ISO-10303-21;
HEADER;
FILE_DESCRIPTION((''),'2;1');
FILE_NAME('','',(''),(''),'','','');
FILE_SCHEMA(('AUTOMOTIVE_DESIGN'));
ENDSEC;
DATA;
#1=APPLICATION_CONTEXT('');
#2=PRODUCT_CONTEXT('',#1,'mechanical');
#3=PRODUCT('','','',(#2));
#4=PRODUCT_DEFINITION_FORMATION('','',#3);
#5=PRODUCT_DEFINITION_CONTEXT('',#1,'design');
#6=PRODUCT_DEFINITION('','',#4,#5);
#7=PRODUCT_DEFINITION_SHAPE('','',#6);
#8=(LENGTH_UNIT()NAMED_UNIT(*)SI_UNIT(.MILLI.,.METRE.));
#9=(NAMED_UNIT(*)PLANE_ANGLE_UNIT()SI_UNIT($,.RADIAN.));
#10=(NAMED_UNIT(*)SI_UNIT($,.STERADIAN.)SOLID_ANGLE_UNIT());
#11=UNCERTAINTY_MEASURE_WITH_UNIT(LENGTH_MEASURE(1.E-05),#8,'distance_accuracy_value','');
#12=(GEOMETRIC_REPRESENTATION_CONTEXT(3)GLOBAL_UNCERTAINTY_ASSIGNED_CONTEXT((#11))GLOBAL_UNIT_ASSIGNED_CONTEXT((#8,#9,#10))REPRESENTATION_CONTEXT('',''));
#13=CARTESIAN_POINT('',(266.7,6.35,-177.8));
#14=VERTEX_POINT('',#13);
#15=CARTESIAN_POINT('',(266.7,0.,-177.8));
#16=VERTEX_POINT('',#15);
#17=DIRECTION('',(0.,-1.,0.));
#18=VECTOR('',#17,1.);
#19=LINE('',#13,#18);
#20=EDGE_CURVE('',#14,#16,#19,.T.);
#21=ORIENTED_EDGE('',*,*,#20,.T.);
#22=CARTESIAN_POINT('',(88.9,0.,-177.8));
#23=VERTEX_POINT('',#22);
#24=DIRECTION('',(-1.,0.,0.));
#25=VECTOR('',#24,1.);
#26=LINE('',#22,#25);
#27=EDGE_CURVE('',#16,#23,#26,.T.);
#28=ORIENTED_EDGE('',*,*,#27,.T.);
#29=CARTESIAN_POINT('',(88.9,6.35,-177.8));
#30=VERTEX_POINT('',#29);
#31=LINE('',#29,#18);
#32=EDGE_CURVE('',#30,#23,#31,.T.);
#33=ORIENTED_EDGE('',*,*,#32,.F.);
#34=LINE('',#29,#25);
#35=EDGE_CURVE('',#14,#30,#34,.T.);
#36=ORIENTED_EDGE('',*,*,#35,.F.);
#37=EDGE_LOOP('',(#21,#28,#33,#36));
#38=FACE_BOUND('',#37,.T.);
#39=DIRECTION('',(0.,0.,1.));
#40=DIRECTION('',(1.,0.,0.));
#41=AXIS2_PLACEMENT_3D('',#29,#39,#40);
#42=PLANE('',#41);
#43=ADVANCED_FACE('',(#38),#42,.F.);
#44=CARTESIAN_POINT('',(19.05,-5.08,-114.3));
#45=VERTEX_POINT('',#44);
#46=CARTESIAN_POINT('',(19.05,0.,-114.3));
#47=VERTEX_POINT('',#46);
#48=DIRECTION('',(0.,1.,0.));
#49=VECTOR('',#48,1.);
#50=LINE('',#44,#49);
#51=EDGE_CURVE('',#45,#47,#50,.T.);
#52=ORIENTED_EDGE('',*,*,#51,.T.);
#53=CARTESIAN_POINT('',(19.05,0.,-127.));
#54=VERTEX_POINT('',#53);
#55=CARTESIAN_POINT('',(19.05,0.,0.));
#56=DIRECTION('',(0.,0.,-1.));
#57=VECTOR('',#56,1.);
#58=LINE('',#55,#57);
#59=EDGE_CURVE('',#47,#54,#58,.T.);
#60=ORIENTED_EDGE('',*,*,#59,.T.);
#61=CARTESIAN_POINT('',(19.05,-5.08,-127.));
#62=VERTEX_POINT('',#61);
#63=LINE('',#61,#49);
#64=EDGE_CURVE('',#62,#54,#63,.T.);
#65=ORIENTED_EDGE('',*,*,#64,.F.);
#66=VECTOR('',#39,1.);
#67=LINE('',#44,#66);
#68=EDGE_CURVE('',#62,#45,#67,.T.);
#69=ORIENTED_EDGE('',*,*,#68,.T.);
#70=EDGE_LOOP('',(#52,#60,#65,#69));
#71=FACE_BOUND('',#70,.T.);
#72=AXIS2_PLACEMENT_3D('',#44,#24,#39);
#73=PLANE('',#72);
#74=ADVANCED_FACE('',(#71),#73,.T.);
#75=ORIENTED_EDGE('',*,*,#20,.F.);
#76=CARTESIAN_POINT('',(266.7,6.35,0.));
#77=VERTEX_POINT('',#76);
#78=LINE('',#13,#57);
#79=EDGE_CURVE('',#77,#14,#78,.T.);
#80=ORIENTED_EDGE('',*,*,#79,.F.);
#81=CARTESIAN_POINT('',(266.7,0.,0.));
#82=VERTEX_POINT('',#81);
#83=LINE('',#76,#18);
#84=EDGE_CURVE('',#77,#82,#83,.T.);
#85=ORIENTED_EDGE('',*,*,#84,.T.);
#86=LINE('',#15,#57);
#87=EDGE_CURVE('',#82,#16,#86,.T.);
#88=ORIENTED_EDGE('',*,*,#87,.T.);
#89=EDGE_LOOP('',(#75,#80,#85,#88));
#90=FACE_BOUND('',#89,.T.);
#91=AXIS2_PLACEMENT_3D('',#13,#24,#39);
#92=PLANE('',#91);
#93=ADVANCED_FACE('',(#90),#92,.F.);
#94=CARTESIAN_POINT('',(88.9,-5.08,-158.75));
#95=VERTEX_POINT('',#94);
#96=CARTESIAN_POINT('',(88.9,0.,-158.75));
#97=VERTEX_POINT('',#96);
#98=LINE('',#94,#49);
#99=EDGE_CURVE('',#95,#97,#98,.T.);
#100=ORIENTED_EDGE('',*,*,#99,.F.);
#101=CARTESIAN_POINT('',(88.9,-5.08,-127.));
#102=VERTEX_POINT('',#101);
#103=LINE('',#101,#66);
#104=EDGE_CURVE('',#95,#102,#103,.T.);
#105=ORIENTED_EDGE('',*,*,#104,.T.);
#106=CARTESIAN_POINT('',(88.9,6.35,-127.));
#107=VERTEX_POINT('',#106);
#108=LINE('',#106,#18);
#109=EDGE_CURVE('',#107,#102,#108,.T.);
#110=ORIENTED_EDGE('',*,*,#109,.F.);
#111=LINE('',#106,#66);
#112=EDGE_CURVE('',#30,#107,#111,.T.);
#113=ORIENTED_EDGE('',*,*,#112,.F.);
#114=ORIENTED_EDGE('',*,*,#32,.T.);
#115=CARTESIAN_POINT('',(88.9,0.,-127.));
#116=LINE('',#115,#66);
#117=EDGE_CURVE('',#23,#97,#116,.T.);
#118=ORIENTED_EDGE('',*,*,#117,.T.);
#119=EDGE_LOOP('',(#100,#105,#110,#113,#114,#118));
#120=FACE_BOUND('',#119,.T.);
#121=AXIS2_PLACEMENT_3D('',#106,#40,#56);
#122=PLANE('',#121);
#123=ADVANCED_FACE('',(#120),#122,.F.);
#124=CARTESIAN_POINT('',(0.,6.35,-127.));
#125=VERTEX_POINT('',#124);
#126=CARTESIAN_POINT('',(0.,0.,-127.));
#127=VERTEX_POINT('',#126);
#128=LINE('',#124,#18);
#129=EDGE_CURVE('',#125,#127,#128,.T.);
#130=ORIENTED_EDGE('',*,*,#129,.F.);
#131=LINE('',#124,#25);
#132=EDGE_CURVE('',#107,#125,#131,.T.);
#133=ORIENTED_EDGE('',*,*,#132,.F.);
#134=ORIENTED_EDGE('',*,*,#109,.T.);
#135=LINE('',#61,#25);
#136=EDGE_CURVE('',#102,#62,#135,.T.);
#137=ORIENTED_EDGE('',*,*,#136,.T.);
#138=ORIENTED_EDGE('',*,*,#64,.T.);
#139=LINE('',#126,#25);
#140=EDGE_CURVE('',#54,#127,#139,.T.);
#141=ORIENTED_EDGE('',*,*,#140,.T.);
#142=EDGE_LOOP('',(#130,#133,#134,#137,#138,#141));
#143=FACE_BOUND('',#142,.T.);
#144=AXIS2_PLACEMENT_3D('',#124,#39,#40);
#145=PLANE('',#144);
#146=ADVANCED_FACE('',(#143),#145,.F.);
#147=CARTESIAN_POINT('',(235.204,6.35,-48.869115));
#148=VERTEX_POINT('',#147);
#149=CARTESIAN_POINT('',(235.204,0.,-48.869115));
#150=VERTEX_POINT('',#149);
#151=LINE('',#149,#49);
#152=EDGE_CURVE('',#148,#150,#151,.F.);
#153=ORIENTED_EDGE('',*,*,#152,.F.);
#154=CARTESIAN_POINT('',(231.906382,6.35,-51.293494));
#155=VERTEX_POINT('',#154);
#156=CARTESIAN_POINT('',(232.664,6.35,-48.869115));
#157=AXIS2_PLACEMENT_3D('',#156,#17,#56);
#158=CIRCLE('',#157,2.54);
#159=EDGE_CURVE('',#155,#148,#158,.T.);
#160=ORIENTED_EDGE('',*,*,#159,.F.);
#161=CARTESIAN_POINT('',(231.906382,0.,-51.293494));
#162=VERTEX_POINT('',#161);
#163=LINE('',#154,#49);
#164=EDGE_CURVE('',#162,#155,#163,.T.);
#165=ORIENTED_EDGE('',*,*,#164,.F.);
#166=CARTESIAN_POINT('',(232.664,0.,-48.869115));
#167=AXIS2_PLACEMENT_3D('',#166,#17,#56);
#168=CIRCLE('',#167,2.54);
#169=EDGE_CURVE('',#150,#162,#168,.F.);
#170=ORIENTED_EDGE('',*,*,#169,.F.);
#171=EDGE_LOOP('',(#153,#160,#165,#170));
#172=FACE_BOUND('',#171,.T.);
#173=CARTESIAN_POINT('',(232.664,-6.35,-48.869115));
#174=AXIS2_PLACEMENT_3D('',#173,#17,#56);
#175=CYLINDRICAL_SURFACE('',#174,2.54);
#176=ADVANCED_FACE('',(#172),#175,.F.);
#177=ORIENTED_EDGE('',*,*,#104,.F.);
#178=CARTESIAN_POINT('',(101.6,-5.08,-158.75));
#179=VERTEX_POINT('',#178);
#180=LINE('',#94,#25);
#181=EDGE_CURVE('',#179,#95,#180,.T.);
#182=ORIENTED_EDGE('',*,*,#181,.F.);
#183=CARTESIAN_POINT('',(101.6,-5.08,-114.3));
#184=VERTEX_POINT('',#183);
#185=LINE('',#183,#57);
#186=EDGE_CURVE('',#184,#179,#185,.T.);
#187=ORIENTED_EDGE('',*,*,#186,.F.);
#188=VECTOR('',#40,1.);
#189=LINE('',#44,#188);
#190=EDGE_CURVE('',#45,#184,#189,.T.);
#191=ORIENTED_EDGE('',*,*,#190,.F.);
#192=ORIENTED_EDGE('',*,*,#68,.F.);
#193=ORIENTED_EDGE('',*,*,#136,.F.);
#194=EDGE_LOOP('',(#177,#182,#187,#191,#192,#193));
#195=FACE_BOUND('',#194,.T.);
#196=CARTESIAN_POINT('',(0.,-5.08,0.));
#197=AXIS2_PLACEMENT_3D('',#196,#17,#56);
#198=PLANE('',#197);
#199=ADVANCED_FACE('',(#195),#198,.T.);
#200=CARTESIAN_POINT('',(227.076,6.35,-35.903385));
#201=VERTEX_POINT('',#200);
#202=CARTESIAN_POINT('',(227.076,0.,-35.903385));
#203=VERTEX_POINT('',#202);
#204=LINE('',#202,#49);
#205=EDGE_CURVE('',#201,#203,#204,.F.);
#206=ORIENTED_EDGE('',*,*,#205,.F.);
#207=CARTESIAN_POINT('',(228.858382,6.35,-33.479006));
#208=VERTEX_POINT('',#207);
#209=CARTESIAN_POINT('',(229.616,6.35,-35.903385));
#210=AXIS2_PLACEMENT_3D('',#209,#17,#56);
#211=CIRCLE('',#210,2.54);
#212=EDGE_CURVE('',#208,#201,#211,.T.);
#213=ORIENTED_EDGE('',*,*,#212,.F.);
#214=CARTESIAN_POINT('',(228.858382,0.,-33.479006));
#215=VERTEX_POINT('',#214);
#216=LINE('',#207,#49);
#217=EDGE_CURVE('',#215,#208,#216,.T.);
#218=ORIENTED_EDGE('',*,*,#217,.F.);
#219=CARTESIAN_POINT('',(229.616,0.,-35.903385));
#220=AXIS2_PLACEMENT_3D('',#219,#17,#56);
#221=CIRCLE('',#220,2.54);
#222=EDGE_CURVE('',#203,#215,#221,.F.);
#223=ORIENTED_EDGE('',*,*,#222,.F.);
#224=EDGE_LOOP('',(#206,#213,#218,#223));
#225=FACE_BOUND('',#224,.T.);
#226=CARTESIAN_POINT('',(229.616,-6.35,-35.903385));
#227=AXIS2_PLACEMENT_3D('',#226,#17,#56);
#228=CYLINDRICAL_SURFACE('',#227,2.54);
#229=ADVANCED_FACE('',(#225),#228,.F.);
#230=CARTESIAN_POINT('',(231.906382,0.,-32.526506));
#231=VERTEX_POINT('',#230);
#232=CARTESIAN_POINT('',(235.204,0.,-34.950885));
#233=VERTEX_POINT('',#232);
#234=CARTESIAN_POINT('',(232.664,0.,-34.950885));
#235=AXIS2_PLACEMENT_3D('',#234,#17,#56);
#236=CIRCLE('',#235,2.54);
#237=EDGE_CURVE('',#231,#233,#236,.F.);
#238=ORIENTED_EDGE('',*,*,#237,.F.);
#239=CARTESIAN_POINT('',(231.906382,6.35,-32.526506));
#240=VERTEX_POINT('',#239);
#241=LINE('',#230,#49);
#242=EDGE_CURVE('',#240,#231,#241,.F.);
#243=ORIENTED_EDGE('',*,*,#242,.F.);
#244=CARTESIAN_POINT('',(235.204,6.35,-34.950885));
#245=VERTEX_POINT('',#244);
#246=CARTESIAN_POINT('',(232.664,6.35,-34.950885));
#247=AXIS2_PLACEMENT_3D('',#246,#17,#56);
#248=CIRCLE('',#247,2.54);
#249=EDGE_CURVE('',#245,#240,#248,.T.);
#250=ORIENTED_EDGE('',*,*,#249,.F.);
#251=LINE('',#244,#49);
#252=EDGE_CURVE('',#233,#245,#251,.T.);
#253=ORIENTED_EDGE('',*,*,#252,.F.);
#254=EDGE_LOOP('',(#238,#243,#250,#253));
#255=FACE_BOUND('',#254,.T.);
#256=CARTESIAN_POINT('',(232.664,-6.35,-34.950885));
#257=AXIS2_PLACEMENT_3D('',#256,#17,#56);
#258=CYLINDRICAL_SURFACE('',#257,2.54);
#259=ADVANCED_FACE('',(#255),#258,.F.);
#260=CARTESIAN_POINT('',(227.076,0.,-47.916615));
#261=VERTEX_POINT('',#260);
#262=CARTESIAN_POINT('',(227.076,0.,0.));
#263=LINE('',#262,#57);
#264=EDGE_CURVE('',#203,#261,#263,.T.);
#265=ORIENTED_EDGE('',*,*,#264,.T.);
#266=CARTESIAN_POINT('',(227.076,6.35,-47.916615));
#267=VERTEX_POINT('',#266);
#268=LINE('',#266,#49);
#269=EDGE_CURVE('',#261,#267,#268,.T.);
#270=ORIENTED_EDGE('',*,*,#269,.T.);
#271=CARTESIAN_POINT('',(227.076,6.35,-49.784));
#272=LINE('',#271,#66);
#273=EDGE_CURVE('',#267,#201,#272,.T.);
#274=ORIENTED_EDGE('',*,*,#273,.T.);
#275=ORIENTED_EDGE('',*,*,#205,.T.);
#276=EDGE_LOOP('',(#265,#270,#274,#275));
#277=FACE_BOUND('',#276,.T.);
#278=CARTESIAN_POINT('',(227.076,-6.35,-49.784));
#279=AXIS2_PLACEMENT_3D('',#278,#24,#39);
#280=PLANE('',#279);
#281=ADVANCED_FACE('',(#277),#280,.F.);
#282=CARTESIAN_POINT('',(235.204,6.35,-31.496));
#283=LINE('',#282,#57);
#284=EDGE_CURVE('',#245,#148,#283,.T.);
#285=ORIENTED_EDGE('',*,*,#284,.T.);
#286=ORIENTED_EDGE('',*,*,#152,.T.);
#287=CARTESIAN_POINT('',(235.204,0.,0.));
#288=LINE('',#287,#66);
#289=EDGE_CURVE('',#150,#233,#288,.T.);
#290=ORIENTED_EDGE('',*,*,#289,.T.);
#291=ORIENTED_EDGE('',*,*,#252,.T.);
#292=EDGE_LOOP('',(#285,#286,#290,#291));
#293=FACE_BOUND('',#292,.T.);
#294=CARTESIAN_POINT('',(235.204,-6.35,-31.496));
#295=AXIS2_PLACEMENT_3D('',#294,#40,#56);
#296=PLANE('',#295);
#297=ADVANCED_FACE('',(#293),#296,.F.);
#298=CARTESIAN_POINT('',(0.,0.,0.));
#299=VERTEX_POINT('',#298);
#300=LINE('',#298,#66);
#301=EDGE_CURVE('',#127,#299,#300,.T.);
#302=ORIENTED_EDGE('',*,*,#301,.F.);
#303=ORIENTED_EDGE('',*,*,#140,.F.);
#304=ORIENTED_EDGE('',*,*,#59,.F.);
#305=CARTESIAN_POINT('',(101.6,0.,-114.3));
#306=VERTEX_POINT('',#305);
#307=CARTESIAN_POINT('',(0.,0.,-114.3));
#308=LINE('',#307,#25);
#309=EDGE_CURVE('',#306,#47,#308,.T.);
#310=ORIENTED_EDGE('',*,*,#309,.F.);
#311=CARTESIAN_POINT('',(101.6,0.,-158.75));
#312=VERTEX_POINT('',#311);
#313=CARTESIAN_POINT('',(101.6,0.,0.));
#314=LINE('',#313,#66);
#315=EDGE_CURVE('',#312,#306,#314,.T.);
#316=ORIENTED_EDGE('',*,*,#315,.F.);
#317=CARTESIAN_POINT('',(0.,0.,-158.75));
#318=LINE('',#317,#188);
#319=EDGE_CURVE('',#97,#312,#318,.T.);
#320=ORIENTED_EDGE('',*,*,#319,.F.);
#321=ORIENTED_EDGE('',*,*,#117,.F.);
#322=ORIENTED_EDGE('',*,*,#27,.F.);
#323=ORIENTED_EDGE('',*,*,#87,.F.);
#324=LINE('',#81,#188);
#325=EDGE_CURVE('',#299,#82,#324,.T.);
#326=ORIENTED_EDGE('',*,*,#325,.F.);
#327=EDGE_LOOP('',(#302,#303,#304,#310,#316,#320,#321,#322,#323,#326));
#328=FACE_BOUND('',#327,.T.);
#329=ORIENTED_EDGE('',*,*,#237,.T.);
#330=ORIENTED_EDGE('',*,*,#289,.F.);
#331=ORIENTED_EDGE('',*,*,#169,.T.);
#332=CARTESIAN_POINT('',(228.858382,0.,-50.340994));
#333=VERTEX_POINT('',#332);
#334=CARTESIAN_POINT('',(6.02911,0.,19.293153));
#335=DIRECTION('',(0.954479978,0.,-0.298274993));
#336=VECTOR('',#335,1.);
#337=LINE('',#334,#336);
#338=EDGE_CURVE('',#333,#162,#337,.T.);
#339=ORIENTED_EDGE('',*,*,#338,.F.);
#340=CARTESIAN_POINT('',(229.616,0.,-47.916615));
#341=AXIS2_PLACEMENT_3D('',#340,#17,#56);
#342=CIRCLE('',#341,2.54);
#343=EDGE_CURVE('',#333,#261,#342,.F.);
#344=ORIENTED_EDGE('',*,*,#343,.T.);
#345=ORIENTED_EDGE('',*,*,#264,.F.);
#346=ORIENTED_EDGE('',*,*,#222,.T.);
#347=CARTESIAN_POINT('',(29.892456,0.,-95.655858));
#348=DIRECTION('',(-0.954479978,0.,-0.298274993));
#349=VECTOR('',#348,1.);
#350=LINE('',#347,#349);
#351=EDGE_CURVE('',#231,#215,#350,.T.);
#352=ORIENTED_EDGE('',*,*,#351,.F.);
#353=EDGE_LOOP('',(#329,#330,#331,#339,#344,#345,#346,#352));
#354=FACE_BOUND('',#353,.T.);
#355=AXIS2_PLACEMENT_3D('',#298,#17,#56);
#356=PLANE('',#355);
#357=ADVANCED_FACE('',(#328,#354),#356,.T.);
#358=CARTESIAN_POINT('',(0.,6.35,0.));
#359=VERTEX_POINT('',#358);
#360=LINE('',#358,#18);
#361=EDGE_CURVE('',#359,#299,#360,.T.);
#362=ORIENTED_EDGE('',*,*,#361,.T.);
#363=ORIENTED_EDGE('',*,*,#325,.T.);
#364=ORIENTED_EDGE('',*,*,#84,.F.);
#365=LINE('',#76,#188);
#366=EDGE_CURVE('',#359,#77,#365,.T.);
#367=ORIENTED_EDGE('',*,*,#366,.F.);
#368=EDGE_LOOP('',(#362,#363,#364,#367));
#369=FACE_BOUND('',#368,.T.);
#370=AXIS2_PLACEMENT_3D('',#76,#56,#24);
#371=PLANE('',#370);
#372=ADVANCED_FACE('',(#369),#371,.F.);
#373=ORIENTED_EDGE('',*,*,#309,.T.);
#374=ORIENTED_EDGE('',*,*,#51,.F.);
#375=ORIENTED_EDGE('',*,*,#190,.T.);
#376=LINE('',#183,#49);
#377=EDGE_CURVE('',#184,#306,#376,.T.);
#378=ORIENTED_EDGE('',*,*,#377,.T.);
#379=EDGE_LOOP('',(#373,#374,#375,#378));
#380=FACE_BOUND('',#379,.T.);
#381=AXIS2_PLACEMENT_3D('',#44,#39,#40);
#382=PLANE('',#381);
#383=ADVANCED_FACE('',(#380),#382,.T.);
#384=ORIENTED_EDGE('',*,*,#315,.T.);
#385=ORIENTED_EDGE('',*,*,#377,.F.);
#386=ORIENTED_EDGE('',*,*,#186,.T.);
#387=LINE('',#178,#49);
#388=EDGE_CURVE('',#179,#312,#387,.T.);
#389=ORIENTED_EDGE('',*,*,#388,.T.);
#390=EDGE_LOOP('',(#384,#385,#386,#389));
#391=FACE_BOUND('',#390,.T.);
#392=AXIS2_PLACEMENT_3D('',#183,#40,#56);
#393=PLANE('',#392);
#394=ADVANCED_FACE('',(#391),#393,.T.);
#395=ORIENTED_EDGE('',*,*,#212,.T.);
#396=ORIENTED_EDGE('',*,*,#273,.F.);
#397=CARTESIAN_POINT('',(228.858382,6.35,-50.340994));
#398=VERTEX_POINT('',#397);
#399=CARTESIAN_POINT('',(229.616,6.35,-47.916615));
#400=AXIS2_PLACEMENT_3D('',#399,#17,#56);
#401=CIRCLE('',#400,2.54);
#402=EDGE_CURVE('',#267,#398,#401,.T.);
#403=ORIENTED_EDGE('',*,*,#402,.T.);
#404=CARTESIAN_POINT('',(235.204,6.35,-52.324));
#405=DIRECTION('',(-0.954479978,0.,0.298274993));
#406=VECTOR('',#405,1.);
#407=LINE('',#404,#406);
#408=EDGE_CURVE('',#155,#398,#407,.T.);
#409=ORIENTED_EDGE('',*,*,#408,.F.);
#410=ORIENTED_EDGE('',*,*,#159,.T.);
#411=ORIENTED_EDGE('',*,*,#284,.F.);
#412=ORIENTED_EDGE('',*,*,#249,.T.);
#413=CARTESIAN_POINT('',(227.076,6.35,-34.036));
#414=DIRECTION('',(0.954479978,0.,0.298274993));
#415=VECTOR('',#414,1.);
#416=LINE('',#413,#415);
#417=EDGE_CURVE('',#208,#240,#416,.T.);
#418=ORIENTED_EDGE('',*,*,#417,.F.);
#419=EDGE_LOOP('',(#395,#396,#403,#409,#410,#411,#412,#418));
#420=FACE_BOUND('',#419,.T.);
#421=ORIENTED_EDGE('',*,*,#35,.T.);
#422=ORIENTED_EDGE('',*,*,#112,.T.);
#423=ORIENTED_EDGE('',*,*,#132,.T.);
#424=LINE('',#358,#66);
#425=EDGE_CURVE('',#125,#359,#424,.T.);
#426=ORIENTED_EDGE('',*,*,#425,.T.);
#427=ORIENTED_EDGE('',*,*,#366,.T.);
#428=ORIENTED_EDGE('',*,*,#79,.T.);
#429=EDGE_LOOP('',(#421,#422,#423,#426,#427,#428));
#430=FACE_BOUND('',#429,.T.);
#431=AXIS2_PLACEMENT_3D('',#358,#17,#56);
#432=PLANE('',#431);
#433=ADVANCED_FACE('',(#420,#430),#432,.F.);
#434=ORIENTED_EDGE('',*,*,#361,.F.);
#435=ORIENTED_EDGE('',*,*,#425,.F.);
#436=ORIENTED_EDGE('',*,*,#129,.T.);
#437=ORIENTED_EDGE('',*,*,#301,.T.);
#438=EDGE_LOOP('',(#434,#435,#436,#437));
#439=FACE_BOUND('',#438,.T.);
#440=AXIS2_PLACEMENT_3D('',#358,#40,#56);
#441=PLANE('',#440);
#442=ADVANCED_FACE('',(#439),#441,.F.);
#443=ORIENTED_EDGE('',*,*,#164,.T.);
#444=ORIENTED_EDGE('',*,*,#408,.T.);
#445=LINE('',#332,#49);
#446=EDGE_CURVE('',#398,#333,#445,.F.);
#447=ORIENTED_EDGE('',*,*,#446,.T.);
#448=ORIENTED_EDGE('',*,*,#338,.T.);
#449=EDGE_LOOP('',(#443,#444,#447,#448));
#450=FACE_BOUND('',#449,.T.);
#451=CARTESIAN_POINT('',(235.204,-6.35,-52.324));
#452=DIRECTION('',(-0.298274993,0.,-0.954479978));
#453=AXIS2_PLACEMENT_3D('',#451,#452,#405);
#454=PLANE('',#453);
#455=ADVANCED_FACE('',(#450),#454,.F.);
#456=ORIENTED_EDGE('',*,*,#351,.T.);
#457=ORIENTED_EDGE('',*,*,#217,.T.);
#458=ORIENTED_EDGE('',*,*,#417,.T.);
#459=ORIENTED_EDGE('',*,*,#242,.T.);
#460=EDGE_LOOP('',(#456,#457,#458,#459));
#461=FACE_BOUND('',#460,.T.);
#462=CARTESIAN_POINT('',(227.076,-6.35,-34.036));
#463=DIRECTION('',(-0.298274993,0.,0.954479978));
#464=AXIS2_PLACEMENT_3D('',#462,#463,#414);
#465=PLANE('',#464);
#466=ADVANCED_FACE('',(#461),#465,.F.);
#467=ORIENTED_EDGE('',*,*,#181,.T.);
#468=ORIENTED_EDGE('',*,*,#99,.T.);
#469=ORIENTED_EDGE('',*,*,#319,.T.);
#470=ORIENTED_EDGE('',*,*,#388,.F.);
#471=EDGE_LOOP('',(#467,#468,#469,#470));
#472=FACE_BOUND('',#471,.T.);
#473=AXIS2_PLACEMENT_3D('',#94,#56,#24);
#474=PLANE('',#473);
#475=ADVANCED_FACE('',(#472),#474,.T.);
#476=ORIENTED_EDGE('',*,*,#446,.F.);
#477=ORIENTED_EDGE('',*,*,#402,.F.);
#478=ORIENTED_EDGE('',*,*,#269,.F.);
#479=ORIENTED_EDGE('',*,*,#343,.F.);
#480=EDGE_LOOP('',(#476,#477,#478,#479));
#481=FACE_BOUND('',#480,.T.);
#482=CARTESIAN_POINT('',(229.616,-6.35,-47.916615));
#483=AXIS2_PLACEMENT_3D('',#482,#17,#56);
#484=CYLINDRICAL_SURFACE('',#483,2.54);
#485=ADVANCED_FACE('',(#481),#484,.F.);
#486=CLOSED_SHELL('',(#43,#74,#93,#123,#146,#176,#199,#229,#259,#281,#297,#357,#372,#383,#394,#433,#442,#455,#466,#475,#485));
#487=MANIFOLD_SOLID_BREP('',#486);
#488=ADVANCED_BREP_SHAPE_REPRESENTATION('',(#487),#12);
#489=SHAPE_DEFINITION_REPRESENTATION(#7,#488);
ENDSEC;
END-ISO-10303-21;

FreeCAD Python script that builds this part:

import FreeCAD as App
import Part
import Sketcher

V = App.Vector
Q = App.Units.Quantity


def edges_at(feature, points):
    """Names of the edges that pass closest to the given points."""
    edges = feature.Shape.Edges
    near = lambda p: min(range(len(edges)), key=lambda i: edges[i].distToShape(Part.Vertex(*p))[0])
    return sorted({f"Edge{near(p) + 1}" for p in points})


def add_polygon(sketch, points):
    """Adds a closed chain of lines whose ends are joined by coincident constraints."""
    first, n = sketch.GeometryCount, len(points)
    for a, b in zip(points, points[1:] + points[:1]):
        sketch.addGeometry(Part.LineSegment(App.Vector(*a, 0), App.Vector(*b, 0)), False)
    for i in range(n):
        sketch.addConstraint(Sketcher.Constraint("Coincident", first + i, 2, first + (i + 1) % n, 1))

doc = App.newDocument("Part")
body = doc.addObject("PartDesign::Body", "Body")

# Sketch on XZ plane
sketch1 = body.newObject("Sketcher::SketchObject", "Sketch")
sketch1.AttachmentSupport = (doc.getObject("XZ_Plane"), [""])
sketch1.MapMode = "FlatFace"
add_polygon(sketch1, [(0, -127), (0, 0), (267, 0), (267, -178), (89, -178), (89, -127)])  # lines 0-5
sketch1.addConstraint([
    Sketcher.Constraint("Vertical", 0),
    Sketcher.Constraint("Horizontal", 1),
    Sketcher.Constraint("Vertical", 2),
    Sketcher.Constraint("Horizontal", 3),
    Sketcher.Constraint("Vertical", 4),
    Sketcher.Constraint("Horizontal", 5),
    Sketcher.Constraint("Coincident", 0, 2, -1, 1),
    Sketcher.Constraint("Equal", 3, 2),
    Sketcher.Constraint("DistanceX", 3, 2, 3, 1, Q("7 in")),
    Sketcher.Constraint("DistanceY", 0, 1, 0, 2, Q("5 in")),
    Sketcher.Constraint("DistanceX", 1, 1, 1, 2, Q("10.5 in")),
])
pad1 = body.newObject("PartDesign::Pad", "Pad")
pad1.Profile = sketch1
pad1.Length = Q("0.25 in")
pad1.Reversed = True

# Sketch on XZ plane
sketch2 = body.newObject("Sketcher::SketchObject", "Sketch001")
sketch2.AttachmentSupport = (doc.getObject("XZ_Plane"), [""])
sketch2.MapMode = "FlatFace"
sketch2.AttachmentOffset = App.Placement(V(0, 0, -0.25 * 25.4), App.Rotation())
add_polygon(sketch2, [(19, -114), (102, -114), (102, -159), (89, -159), (89, -127), (19, -127)])  # lines 0-5
sketch2.addConstraint([
    Sketcher.Constraint("Horizontal", 0),
    Sketcher.Constraint("Vertical", 1),
    Sketcher.Constraint("Horizontal", 2),
    Sketcher.Constraint("Vertical", 3),
    Sketcher.Constraint("Horizontal", 4),
    Sketcher.Constraint("Vertical", 5),
    Sketcher.Constraint("Equal", 2, 5),
    Sketcher.Constraint("DistanceX", 2, 2, 2, 1, Q("0.5 in")),
    Sketcher.Constraint("DistanceX", -1, 1, 0, 2, Q("4 in")),
    Sketcher.Constraint("DistanceY", 3, 2, -1, 1, Q("5 in")),
    Sketcher.Constraint("DistanceX", 0, 1, 0, 2, Q("3.25 in")),
    Sketcher.Constraint("DistanceY", 1, 2, 1, 1, Q("1.75 in")),
])
pad2 = body.newObject("PartDesign::Pad", "Pad001")
pad2.Profile = sketch2
pad2.Length = Q("0.45 in")

# Sketch on XZ plane
sketch3 = body.newObject("Sketcher::SketchObject", "Sketch002")
sketch3.AttachmentSupport = (doc.getObject("XZ_Plane"), [""])
sketch3.MapMode = "FlatFace"
sketch3.AttachmentOffset = App.Placement(V(0, 0, -0.25 * 25.4), App.Rotation())
add_polygon(sketch3, [(235, -31), (235, -52), (227, -50), (227, -34)])  # lines 0-3
sketch3.addConstraint([
    Sketcher.Constraint("Vertical", 0),
    Sketcher.Constraint("Vertical", 2),
    Sketcher.Constraint("Equal", 1, 3),
    Sketcher.Constraint("DistanceY", 0, 2, 0, 1, Q("0.82 in")),
    Sketcher.Constraint("DistanceY", 2, 1, 2, 2, Q("0.62 in")),
    Sketcher.Constraint("DistanceX", -1, 1, 0, 2, Q("9.26 in")),
    Sketcher.Constraint("DistanceY", 0, 2, -1, 1, Q("2.06 in")),
    Sketcher.Constraint("DistanceX", -1, 1, 1, 2, Q("8.94 in")),
])
pocket1 = body.newObject("PartDesign::Pocket", "Pocket")
pocket1.Profile = sketch3
pocket1.Length = Q("0.5 in")
pocket1.Reversed = True
doc.recompute()

fillet = body.newObject("PartDesign::Fillet", "Fillet")
fillet.Base = (pocket1, edges_at(pocket1, [
    (235.204, 3.175, -31.496),
    (227.076, 3.175, -34.036),
    (227.076, 3.175, -49.784),
    (235.204, 3.175, -52.324),
]))
fillet.Radius = Q("0.1 in")

doc.recompute()
